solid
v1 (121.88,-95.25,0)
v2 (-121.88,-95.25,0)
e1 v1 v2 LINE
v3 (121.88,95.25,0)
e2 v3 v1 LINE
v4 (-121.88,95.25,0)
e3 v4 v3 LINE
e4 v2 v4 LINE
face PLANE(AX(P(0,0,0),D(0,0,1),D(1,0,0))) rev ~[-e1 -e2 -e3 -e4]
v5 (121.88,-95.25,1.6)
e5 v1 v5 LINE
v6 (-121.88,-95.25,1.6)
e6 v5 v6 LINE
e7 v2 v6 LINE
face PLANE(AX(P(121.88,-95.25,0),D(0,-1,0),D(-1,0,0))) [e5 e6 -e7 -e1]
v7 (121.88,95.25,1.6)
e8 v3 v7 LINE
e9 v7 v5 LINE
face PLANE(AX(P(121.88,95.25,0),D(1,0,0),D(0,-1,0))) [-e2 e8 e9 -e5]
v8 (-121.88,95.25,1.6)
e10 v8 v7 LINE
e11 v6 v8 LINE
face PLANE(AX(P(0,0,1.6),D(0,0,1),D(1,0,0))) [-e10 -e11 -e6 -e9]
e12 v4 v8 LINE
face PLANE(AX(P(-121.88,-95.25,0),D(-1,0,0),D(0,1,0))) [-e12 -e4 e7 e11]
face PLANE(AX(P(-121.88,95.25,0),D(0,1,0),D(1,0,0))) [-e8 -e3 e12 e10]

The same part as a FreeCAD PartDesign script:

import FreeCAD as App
import Part
import Sketcher

V = App.Vector
Q = App.Units.Quantity


def add_polygon(sketch, points):
    """Adds a closed chain of lines whose ends are joined by coincident constraints."""
    first, n = sketch.GeometryCount, len(points)
    for a, b in zip(points, points[1:] + points[:1]):
        sketch.addGeometry(Part.LineSegment(App.Vector(*a, 0), App.Vector(*b, 0)), False)
    for i in range(n):
        sketch.addConstraint(Sketcher.Constraint("Coincident", first + i, 2, first + (i + 1) % n, 1))

doc = App.newDocument("Part")
body = doc.addObject("PartDesign::Body", "Body")

# Sketch on XY plane
sketch1 = doc.addObject("Sketcher::SketchObject", "Sketch")
body.addObject(sketch1)
sketch1.AttachmentSupport = (doc.XY_Plane, [""])
sketch1.MapMode = "FlatFace"
add_polygon(sketch1, [(122, 95), (-122, 95), (-122, -95), (122, -95)])  # lines 0-3
sketch1.addConstraint([
    Sketcher.Constraint("Horizontal", 0),
    Sketcher.Constraint("Vertical", 1),
    Sketcher.Constraint("Horizontal", 2),
    Sketcher.Constraint("Vertical", 3),
    Sketcher.Constraint("Symmetric", 0, 2, 2, 2, -1, 1),
    Sketcher.Constraint("DistanceY", 1, 2, 1, 1, Q("7.5 in")),
    Sketcher.Constraint("DistanceX", 0, 2, 0, 1, Q("243.76 mm")),
])
pad1 = doc.addObject("PartDesign::Pad", "Pad")
body.addObject(pad1)
pad1.Profile = sketch1
pad1.Length = Q("0.0629921 in")

doc.recompute()
